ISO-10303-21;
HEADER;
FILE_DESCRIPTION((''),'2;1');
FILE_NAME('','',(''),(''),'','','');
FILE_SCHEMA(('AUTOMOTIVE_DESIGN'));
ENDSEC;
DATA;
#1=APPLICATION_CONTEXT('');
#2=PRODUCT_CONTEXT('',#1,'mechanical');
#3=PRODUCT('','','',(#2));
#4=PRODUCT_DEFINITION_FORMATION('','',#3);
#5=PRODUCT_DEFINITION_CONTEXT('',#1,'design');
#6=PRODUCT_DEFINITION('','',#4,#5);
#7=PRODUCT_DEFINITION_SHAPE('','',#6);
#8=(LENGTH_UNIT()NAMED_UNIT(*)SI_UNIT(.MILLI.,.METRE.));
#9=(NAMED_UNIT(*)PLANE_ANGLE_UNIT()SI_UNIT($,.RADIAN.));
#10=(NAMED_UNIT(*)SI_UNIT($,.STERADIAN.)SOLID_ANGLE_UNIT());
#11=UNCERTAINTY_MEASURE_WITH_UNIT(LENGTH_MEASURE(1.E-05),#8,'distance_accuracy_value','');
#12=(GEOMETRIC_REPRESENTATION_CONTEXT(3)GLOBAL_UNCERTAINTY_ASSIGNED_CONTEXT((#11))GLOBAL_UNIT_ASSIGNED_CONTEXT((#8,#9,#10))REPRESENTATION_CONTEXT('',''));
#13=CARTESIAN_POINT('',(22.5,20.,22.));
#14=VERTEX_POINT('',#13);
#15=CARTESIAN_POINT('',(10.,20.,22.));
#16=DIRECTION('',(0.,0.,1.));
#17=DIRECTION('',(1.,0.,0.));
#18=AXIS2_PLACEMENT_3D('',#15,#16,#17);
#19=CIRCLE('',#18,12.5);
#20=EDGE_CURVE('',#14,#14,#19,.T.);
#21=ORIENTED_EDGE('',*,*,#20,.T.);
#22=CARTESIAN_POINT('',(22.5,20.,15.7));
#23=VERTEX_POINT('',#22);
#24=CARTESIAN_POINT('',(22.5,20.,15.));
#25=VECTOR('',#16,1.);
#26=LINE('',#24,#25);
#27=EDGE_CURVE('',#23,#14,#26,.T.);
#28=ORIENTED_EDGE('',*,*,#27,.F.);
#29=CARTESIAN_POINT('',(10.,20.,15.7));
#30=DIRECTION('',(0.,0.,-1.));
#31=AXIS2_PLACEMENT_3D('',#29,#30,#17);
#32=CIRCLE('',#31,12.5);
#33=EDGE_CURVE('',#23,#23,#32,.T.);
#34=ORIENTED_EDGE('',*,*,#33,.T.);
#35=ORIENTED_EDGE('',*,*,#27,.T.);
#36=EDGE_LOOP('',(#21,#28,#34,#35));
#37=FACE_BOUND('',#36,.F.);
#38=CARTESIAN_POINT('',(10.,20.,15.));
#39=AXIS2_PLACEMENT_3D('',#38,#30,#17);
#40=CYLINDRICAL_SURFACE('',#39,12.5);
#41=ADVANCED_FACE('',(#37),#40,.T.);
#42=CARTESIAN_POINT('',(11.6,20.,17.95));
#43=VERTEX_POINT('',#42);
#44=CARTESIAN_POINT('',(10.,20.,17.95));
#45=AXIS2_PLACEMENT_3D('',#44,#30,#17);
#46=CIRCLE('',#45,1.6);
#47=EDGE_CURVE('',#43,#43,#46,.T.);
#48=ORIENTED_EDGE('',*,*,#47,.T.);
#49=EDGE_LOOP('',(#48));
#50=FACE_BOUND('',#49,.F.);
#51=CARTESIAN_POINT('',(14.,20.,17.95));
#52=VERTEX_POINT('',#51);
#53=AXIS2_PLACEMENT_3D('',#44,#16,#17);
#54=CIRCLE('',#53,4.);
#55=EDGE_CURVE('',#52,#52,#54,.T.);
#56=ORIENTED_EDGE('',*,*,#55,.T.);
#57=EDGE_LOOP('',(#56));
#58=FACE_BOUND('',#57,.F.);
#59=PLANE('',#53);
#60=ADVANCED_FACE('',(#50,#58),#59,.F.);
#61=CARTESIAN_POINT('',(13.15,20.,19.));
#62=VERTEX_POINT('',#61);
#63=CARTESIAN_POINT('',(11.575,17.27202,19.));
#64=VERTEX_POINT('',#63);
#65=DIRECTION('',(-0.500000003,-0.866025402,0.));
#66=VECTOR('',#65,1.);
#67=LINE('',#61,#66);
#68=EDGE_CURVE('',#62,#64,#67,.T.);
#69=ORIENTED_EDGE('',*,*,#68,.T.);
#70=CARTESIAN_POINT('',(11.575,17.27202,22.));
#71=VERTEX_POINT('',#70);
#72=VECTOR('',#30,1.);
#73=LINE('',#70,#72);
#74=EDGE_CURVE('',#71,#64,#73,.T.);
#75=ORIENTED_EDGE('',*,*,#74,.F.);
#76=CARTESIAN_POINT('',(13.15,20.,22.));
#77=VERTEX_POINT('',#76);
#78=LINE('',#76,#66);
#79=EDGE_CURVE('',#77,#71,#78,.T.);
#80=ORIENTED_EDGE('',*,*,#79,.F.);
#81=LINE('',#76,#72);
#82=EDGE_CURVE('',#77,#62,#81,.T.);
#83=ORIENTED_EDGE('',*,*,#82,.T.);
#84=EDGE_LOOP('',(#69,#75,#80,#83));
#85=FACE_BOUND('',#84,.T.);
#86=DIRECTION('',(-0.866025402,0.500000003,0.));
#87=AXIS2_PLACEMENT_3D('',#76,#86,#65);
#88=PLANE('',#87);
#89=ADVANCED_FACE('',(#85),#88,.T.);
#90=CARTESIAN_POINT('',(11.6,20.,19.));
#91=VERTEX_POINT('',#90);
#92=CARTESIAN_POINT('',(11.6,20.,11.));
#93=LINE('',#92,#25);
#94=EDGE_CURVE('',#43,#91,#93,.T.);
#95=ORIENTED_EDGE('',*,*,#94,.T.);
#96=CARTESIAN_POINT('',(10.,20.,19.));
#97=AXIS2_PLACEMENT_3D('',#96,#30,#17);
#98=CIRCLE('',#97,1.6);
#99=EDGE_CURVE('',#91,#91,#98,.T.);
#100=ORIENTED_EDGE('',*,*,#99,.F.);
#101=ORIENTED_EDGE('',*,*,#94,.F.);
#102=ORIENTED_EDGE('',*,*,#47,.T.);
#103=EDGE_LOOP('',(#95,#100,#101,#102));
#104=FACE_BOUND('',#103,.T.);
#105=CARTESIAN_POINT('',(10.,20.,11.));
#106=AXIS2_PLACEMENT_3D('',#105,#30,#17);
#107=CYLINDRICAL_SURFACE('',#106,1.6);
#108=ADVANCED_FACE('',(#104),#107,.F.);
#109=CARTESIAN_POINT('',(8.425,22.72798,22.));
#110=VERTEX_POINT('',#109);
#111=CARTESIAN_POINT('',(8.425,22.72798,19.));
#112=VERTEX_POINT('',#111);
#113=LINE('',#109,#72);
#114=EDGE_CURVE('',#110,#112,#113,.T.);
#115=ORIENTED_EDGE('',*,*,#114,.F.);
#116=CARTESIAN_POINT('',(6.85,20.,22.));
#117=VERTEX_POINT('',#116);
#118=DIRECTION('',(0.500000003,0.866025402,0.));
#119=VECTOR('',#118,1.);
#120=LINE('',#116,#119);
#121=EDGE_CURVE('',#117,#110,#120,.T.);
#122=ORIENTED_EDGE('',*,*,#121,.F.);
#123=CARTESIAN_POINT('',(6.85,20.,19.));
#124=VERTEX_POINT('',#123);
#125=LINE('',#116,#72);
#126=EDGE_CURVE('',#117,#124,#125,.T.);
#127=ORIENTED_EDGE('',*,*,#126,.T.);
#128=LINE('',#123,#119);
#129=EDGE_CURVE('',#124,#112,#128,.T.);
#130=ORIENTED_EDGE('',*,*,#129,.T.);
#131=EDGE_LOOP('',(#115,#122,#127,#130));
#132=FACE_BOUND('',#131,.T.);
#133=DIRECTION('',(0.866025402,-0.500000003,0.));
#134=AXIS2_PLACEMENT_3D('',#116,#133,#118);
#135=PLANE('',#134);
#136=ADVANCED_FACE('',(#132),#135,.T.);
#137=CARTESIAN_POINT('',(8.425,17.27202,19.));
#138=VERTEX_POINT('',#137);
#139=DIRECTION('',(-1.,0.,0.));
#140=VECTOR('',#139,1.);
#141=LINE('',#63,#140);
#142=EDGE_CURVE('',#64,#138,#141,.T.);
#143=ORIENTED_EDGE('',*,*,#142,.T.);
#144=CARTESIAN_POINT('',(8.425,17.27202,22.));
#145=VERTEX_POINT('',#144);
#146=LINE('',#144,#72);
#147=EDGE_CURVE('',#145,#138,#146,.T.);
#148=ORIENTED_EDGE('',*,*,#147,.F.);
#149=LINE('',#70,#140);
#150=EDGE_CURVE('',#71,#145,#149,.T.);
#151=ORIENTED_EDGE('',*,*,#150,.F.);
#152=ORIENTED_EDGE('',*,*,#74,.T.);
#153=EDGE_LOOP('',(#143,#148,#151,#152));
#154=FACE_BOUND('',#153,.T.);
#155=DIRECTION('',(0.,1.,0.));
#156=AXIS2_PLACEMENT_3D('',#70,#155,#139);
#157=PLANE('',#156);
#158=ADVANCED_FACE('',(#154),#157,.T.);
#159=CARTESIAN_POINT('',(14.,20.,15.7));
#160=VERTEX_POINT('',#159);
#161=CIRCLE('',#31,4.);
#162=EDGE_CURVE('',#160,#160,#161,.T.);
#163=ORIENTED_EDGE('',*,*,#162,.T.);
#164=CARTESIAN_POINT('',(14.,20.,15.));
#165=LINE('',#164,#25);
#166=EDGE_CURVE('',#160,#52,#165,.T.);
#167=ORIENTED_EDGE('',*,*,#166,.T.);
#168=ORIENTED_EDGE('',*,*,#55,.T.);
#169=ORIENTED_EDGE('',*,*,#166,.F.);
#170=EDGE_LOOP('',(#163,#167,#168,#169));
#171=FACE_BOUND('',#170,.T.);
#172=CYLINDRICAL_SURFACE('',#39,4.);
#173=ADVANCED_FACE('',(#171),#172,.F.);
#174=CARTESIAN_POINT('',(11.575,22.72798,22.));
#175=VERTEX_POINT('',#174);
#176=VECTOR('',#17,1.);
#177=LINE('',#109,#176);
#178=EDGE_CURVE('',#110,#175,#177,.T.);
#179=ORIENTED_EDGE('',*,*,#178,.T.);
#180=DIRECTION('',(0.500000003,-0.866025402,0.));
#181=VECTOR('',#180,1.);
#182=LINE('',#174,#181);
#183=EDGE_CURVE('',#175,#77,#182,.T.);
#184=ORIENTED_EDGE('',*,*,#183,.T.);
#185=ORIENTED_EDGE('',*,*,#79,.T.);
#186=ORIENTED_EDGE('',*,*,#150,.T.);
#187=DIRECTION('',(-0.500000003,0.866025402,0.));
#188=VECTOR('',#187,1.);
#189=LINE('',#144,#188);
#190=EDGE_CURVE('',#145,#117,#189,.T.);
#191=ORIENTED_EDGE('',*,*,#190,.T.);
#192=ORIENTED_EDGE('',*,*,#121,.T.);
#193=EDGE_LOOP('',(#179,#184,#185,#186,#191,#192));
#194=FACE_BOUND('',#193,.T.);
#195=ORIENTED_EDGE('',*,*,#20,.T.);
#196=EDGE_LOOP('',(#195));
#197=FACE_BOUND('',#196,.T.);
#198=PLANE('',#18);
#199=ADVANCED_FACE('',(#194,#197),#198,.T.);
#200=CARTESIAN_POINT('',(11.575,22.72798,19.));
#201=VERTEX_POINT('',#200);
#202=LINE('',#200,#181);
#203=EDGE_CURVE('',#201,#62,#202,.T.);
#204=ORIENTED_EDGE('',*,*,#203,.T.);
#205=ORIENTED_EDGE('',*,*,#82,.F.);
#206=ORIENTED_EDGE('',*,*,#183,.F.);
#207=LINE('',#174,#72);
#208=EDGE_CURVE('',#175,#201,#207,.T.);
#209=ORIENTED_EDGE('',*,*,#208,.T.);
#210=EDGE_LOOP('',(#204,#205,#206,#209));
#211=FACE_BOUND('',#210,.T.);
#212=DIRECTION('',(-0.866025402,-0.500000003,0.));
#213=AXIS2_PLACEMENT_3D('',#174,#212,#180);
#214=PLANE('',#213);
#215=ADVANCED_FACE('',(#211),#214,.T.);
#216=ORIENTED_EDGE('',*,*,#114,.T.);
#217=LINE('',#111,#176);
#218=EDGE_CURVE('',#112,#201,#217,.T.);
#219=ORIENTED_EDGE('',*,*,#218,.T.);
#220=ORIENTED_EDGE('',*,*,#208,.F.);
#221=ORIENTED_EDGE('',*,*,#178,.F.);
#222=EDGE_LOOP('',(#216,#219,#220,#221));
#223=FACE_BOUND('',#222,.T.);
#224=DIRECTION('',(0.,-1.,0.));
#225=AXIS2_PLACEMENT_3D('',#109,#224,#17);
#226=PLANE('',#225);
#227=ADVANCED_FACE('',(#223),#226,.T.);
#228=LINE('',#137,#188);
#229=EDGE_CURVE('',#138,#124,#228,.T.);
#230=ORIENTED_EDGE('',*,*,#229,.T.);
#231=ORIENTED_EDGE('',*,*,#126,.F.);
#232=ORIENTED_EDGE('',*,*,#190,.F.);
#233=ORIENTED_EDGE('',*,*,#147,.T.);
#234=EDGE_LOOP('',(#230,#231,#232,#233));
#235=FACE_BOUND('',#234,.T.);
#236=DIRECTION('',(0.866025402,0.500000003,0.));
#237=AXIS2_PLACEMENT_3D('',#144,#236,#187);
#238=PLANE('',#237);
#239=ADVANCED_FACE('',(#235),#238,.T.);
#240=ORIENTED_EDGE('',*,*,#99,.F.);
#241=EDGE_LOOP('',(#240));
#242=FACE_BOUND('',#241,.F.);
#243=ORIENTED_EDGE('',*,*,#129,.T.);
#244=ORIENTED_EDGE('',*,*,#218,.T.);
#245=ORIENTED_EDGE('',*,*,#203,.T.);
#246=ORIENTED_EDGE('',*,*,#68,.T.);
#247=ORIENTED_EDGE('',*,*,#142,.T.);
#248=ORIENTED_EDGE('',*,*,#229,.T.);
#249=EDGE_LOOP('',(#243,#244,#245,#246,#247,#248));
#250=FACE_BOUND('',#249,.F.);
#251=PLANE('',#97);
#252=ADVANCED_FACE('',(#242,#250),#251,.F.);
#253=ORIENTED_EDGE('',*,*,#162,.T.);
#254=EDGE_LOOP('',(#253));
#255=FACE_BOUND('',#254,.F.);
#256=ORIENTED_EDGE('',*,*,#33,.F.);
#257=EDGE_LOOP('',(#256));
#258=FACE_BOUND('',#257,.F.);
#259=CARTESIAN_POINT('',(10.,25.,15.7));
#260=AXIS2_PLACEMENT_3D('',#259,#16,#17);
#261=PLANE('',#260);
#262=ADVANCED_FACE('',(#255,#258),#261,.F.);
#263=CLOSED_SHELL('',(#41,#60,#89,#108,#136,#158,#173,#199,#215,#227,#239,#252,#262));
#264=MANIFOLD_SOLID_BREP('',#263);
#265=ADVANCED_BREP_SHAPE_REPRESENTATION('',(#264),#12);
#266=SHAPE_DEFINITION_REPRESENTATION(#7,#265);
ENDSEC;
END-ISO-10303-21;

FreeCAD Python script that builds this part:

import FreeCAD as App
import Part
import Sketcher

V = App.Vector
Q = App.Units.Quantity

doc = App.newDocument("Part")
body = doc.addObject("PartDesign::Body", "Body")

sketch1 = doc.addObject("Sketcher::SketchObject", "Sketch")
body.addObject(sketch1)
sketch1.AttachmentSupport = (doc.XY_Plane, [""])
sketch1.MapMode = "FlatFace"
sketch1.AttachmentOffset = App.Placement(V(0, 0, 15), App.Rotation())
sketch1.addGeometry(Part.LineSegment(V(-10, 50, 0), V(-10, 0, 0)), False)
sketch1.addGeometry(Part.LineSegment(V(-10, 0, 0), V(30, 0, 0)), False)
sketch1.addGeometry(Part.LineSegment(V(30, 0, 0), V(30, 50, 0)), False)
sketch1.addGeometry(Part.LineSegment(V(30, 50, 0), V(-10, 50, 0)), False)
sketch1.addConstraint(Sketcher.Constraint("Coincident", 0, 2, 1, 1))
sketch1.addConstraint(Sketcher.Constraint("Coincident", 1, 2, 2, 1))
sketch1.addConstraint(Sketcher.Constraint("Coincident", 2, 2, 3, 1))
sketch1.addConstraint(Sketcher.Constraint("Coincident", 3, 2, 0, 1))
sketch1.addConstraint(Sketcher.Constraint("Vertical", 0))
sketch1.addConstraint(Sketcher.Constraint("Horizontal", 1))
sketch1.addConstraint(Sketcher.Constraint("Vertical", 2))
sketch1.addConstraint(Sketcher.Constraint("Horizontal", 3))
sketch1.addConstraint(Sketcher.Constraint("PointOnObject", 0, 2, -1))
sketch1.addConstraint(Sketcher.Constraint("DistanceX", 1, 1, 1, 2, Q("40 mm")))
sketch1.addConstraint(Sketcher.Constraint("DistanceY", 0, 2, 0, 1, Q("50 mm")))
sketch1.addConstraint(Sketcher.Constraint("DistanceX", 0, 2, -1, 1, Q("10 mm")))
pad1 = doc.addObject("PartDesign::Pad", "Pad")
body.addObject(pad1)
pad1.Profile = sketch1
pad1.Length = 0.7
body2 = doc.addObject("PartDesign::Body", "Body001")

sketch2 = doc.addObject("Sketcher::SketchObject", "Sketch001")
body2.addObject(sketch2)
sketch2.AttachmentSupport = (doc.getObject("XY_Plane001"), [""])
sketch2.MapMode = "FlatFace"
sketch2.AttachmentOffset = App.Placement(V(0, 0, 15.2), App.Rotation())
sketch2.addGeometry(Part.Circle(V(10, 20, 0), V(0, 0, 1), 4), False)
sketch2.addConstraint(Sketcher.Constraint("Diameter", 0, Q("8 mm")))
sketch2.addConstraint(Sketcher.Constraint("DistanceX", -1, 1, 0, 3, Q("10 mm")))
sketch2.addConstraint(Sketcher.Constraint("DistanceY", -1, 1, 0, 3, Q("20 mm")))
pad2 = doc.addObject("PartDesign::Pad", "Pad001")
body2.addObject(pad2)
pad2.Profile = sketch2
pad2.Length = 2.75
body3 = doc.addObject("PartDesign::Body", "Body002")

sketch3 = doc.addObject("Sketcher::SketchObject", "Sketch002")
body3.addObject(sketch3)
sketch3.AttachmentSupport = (doc.getObject("XY_Plane002"), [""])
sketch3.MapMode = "FlatFace"
sketch3.AttachmentOffset = App.Placement(V(0, 0, -31), App.Rotation())
sketch3.addGeometry(Part.Circle(V(10, 0, 0), V(0, 0, 1), 1.6), False)
sketch3.addConstraint(Sketcher.Constraint("PointOnObject", 0, 3, -1))
sketch3.addConstraint(Sketcher.Constraint("Diameter", 0, Q("3.2 mm")))
sketch3.addConstraint(Sketcher.Constraint("DistanceX", -1, 1, 0, 3, Q("10 mm")))
pad3 = doc.addObject("PartDesign::Pad", "Pad002")
body3.addObject(pad3)
pad3.Profile = sketch3
pad3.Length = 22.75
body4 = doc.addObject("PartDesign::Body", "Body003")

sketch4 = doc.addObject("Sketcher::SketchObject", "Sketch003")
body4.addObject(sketch4)
sketch4.AttachmentSupport = (doc.getObject("XY_Plane003"), [""])
sketch4.MapMode = "FlatFace"
sketch4.AttachmentOffset = App.Placement(V(0, 0, -27), App.Rotation())
sketch4.addGeometry(Part.Circle(V(10, 0, 0), V(0, 0, 1), 4), False)
sketch4.addConstraint(Sketcher.Constraint("PointOnObject", 0, 3, -1))
sketch4.addConstraint(Sketcher.Constraint("Diameter", 0, Q("8 mm")))
sketch4.addConstraint(Sketcher.Constraint("DistanceX", -1, 1, 0, 3, Q("10 mm")))
pad4 = doc.addObject("PartDesign::Pad", "Pad003")
body4.addObject(pad4)
pad4.Profile = sketch4
pad4.Length = 2.75
body5 = doc.addObject("PartDesign::Body", "Body004")

sketch5 = doc.addObject("Sketcher::SketchObject", "Sketch004")
body5.addObject(sketch5)
sketch5.AttachmentSupport = (doc.getObject("XY_Plane004"), [""])
sketch5.MapMode = "FlatFace"
sketch5.AttachmentOffset = App.Placement(V(0, 0, -20), App.Rotation())
sketch5.addGeometry(Part.LineSegment(V(13.2, 0, 0), V(11.6, -2.7, 0)), False)
sketch5.addGeometry(Part.LineSegment(V(11.6, -2.7, 0), V(8.4, -2.7, 0)), False)
sketch5.addGeometry(Part.LineSegment(V(8.4, -2.7, 0), V(6.8, 0, 0)), False)
sketch5.addGeometry(Part.LineSegment(V(6.8, 0, 0), V(8.4, 2.7, 0)), False)
sketch5.addGeometry(Part.LineSegment(V(8.4, 2.7, 0), V(11.6, 2.7, 0)), False)
sketch5.addGeometry(Part.LineSegment(V(11.6, 2.7, 0), V(13.2, 0, 0)), False)
sketch5.addConstraint(Sketcher.Constraint("Coincident", 0, 2, 1, 1))
sketch5.addConstraint(Sketcher.Constraint("Coincident", 1, 2, 2, 1))
sketch5.addConstraint(Sketcher.Constraint("Coincident", 2, 2, 3, 1))
sketch5.addConstraint(Sketcher.Constraint("Coincident", 3, 2, 4, 1))
sketch5.addConstraint(Sketcher.Constraint("Coincident", 4, 2, 5, 1))
sketch5.addConstraint(Sketcher.Constraint("Coincident", 5, 2, 0, 1))
sketch5.addConstraint(Sketcher.Constraint("Horizontal", 1))
sketch5.addConstraint(Sketcher.Constraint("Horizontal", 4))
sketch5.addConstraint(Sketcher.Constraint("Symmetric", 1, 2, 3, 2, -1))
sketch5.addConstraint(Sketcher.Constraint("PointOnObject", 2, 2, -1))
sketch5.addConstraint(Sketcher.Constraint("PointOnObject", 5, 2, -1))
sketch5.addConstraint(Sketcher.Constraint("Parallel", 0, 3))
sketch5.addConstraint(Sketcher.Constraint("Parallel", 2, 5))
sketch5.addConstraint(Sketcher.Constraint("Angle", 0, Q("-120 deg")))
sketch5.addConstraint(Sketcher.Constraint("DistanceX", 1, 2, 1, 1, Q("3.15 mm")))
sketch5.addConstraint(Sketcher.Constraint("DistanceX", 2, 2, 5, 2, Q("6.3 mm")))
sketch5.addConstraint(Sketcher.Constraint("DistanceX", -1, 1, 2, 2, Q("6.85 mm")))
pad5 = doc.addObject("PartDesign::Pad", "Pad004")
body5.addObject(pad5)
pad5.Profile = sketch5
pad5.Length = 3
pad5.Reversed = True
body6 = doc.addObject("PartDesign::Body", "Body005")

sketch6 = doc.addObject("Sketcher::SketchObject", "Sketch005")
body6.addObject(sketch6)
sketch6.AttachmentSupport = (doc.getObject("XY_Plane005"), [""])
sketch6.MapMode = "FlatFace"
sketch6.AttachmentOffset = App.Placement(V(0, 0, -27), App.Rotation())
sketch6.addGeometry(Part.Circle(V(10, 0, 0), V(0, 0, 1), 12), False)
sketch6.addConstraint(Sketcher.Constraint("PointOnObject", 0, 3, -1))
sketch6.addConstraint(Sketcher.Constraint("Diameter", 0, Q("25 mm")))
sketch6.addConstraint(Sketcher.Constraint("DistanceX", -1, 1, 0, 3, Q("10 mm")))
pad6 = doc.addObject("PartDesign::Pad", "Pad005")
body6.addObject(pad6)
pad6.Profile = sketch6
pad6.Length = 7
doc.recompute()

boolean = doc.addObject("PartDesign::Boolean", "Boolean")
body6.addObject(boolean)
boolean.Type = "Cut"
boolean.addObjects([body5])
doc.recompute()

boolean2 = doc.addObject("PartDesign::Boolean", "Boolean001")
body6.addObject(boolean2)
boolean2.Type = "Cut"
boolean2.addObjects([body4])
doc.recompute()

boolean3 = doc.addObject("PartDesign::Boolean", "Boolean002")
body6.addObject(boolean3)
boolean3.Type = "Cut"
boolean3.addObjects([body3])
body7 = doc.addObject("PartDesign::Body", "Body006")
doc.recompute()

body6.Placement = App.Placement(V(0, 20, 42), App.Rotation(V(0, 0, 1), 0))
boolean4 = doc.addObject("PartDesign::Boolean", "Boolean003")
body7.addObject(boolean4)
boolean4.Type = "Fuse"
boolean4.addObjects([body6])
doc.recompute()

boolean5 = doc.addObject("PartDesign::Boolean", "Boolean004")
body7.addObject(boolean5)
boolean5.Type = "Cut"
boolean5.addObjects([body2])
doc.recompute()

boolean6 = doc.addObject("PartDesign::Boolean", "Boolean005")
body7.addObject(boolean6)
boolean6.Type = "Cut"
boolean6.addObjects([body])

doc.recompute()
